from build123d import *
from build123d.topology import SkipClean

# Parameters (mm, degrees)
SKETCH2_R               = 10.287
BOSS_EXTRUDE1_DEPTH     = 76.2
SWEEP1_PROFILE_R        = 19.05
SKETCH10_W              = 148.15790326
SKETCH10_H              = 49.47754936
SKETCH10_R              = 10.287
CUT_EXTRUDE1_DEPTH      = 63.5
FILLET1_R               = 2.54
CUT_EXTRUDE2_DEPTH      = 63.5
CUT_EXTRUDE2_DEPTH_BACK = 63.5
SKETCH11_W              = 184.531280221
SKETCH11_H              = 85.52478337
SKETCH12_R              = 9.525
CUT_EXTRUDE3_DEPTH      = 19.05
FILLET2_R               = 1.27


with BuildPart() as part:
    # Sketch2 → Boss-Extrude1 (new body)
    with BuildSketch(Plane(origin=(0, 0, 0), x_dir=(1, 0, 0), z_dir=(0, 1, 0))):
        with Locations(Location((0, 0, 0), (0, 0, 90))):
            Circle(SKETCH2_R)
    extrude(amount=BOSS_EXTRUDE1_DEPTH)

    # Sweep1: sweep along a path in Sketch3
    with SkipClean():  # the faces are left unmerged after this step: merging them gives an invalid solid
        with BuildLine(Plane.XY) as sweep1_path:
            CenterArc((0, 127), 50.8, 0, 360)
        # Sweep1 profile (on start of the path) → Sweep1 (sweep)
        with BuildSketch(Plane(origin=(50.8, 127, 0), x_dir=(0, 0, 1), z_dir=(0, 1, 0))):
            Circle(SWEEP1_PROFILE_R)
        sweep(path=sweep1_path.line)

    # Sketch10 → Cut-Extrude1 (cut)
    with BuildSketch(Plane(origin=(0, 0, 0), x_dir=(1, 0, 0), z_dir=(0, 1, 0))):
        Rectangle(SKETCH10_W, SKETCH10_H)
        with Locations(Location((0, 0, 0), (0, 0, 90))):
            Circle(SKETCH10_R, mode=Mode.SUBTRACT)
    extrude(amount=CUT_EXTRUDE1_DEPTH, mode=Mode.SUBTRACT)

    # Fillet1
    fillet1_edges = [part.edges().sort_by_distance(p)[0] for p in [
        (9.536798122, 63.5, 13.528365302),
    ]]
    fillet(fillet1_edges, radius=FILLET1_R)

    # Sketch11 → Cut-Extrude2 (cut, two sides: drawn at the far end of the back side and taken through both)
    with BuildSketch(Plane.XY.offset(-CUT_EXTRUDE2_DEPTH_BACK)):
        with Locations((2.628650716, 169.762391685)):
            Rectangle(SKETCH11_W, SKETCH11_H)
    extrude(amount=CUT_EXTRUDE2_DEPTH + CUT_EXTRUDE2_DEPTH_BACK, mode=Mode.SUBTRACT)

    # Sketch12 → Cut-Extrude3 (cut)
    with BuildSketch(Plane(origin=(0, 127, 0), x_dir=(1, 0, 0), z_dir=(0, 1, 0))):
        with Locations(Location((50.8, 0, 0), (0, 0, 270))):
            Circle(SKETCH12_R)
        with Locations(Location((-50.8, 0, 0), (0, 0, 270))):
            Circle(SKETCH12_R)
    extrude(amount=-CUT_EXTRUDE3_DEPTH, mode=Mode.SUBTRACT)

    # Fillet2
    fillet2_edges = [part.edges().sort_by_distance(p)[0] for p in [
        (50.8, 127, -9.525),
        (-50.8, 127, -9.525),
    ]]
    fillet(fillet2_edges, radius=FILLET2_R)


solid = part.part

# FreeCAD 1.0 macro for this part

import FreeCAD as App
import Part
import Sketcher
Q = App.Units.Quantity


def edges_at(feature, points):
    """Names of the edges that pass closest to the given points."""
    edges = feature.Shape.Edges
    near = lambda p: min(range(len(edges)), key=lambda i: edges[i].distToShape(Part.Vertex(*p))[0])
    return sorted({f"Edge{near(p) + 1}" for p in points})


def add_polygon(sketch, points):
    """Adds a closed chain of lines whose ends are joined by coincident constraints."""
    first, n = sketch.GeometryCount, len(points)
    for a, b in zip(points, points[1:] + points[:1]):
        sketch.addGeometry(Part.LineSegment(App.Vector(*a, 0), App.Vector(*b, 0)), False)
    for i in range(n):
        sketch.addConstraint(Sketcher.Constraint("Coincident", first + i, 2, first + (i + 1) % n, 1))

doc = App.newDocument("Part")
params = doc.addObject("Spreadsheet::Sheet", "Params")
for row, (alias, value) in enumerate([
    ("sketch1_diameter", "0.81 in"),
    ("pad1_length", "3 in"),
    ("sketch2_diameter", "1.5 in"),
    ("sketch3_diameter", "4 in"),
    ("sketch4_diameter", "0.81 in"),
    ("pocket1_length", "2.5 in"),
    ("fillet_radius", "0.1 in"),
    ("sketch6_diameter", "0.75 in"),
    ("pocket3_length", "0.75 in"),
    ("fillet2_radius", "0.05 in"),
], start=1):
    params.set(f"A{row}", alias)
    params.set(f"B{row}", "=" + value)
    params.setAlias(f"B{row}", alias)

body = doc.addObject("PartDesign::Body", "Body")

# Sketch on XZ plane
sketch1 = body.newObject("Sketcher::SketchObject", "Sketch")
sketch1.AttachmentSupport = (doc.getObject("XZ_Plane"), [""])
sketch1.MapMode = "FlatFace"
sketch1.addGeometry(Part.Circle(App.Vector(0, 0, 0), App.Vector(0, 0, 1), 10.287), False)
sketch1.addConstraint([
    Sketcher.Constraint("Coincident", 0, 3, -1, 1),
    Sketcher.Constraint("Diameter", 0, Q("0.81 in")),
])
sketch1.setExpression("Constraints[1]", "Params.sketch1_diameter")
pad1 = body.newObject("PartDesign::Pad", "Pad")
pad1.Profile = sketch1
pad1.setExpression("Length", "Params.pad1_length")
pad1.Reversed = True

# Sketch on XZ plane
sketch2 = body.newObject("Sketcher::SketchObject", "Sketch001")
sketch2.AttachmentSupport = (doc.getObject("XZ_Plane"), [""])
sketch2.MapMode = "FlatFace"
sketch2.AttachmentOffset = App.Placement(App.Vector(0, 0, -5 * 25.4), App.Rotation())
sketch2.addGeometry(Part.Circle(App.Vector(50.8, 0, 0), App.Vector(0, 0, 1), 19.05), False)
sketch2.addConstraint([
    Sketcher.Constraint("PointOnObject", 0, 3, -1),
    Sketcher.Constraint("Diameter", 0, Q("1.5 in")),
    Sketcher.Constraint("DistanceX", -1, 1, 0, 3, Q("2 in")),
])
sketch2.setExpression("Constraints[1]", "Params.sketch2_diameter")

# Sketch on XY plane
sketch3 = body.newObject("Sketcher::SketchObject", "Sketch002")
sketch3.AttachmentSupport = (doc.getObject("XY_Plane"), [""])
sketch3.MapMode = "FlatFace"
sketch3.addGeometry(Part.Circle(App.Vector(0, 127, 0), App.Vector(0, 0, 1), 50.8), False)
sketch3.addConstraint([
    Sketcher.Constraint("PointOnObject", 0, 3, -2),
    Sketcher.Constraint("Diameter", 0, Q("4 in")),
    Sketcher.Constraint("DistanceY", -1, 1, 0, 3, Q("5 in")),
])
sketch3.setExpression("Constraints[1]", "Params.sketch3_diameter")
doc.recompute()

additivepipe = body.newObject("PartDesign::AdditivePipe", "AdditivePipe")
additivepipe.Profile = sketch2
additivepipe.Spine = (sketch3, ["Edge1"])

# Sketch on XZ plane
sketch4 = body.newObject("Sketcher::SketchObject", "Sketch003")
sketch4.AttachmentSupport = (doc.getObject("XZ_Plane"), [""])
sketch4.MapMode = "FlatFace"
add_polygon(sketch4, [(-74.078952, -24.738775), (-74.078952, 24.738775), (74.078952, 24.738775), (74.078952, -24.738775)])  # lines 0-3
sketch4.addGeometry(Part.Circle(App.Vector(0, 0, 0), App.Vector(0, 0, 1), 10.287), False)  # 4
sketch4.addConstraint([
    Sketcher.Constraint("Vertical", 0),
    Sketcher.Constraint("Horizontal", 1),
    Sketcher.Constraint("Vertical", 2),
    Sketcher.Constraint("Horizontal", 3),
    Sketcher.Constraint("Coincident", 4, 3, -1, 1),
    Sketcher.Constraint("Symmetric", 0, 2, 2, 2, -1, 1),
    Sketcher.Constraint("Diameter", 4, Q("0.81 in")),
    Sketcher.Constraint("DistanceY", 0, 1, 0, 2, Q("49.477549 mm")),
    Sketcher.Constraint("DistanceX", 1, 1, 1, 2, Q("148.157903 mm")),
])
sketch4.setExpression("Constraints[10]", "Params.sketch4_diameter")
pocket1 = body.newObject("PartDesign::Pocket", "Pocket")
pocket1.Profile = sketch4
pocket1.setExpression("Length", "Params.pocket1_length")
doc.recompute()

fillet = body.newObject("PartDesign::Fillet", "Fillet")
fillet.Base = (pocket1, edges_at(pocket1, [(9.537, 63.5, 13.528)]))
fillet.setExpression("Radius", "Params.fillet_radius")

# Sketch on XY plane
sketch5 = body.newObject("Sketcher::SketchObject", "Sketch004")
sketch5.AttachmentSupport = (doc.getObject("XY_Plane"), [""])
sketch5.MapMode = "FlatFace"
add_polygon(sketch5, [(-89.636989, 212.524783), (-89.636989, 127), (94.894291, 127), (94.894291, 212.524783)])  # lines 0-3
sketch5.addConstraint([
    Sketcher.Constraint("Vertical", 0),
    Sketcher.Constraint("Horizontal", 1),
    Sketcher.Constraint("Vertical", 2),
    Sketcher.Constraint("Horizontal", 3),
    Sketcher.Constraint("DistanceY", -1, 1, 0, 2, Q("5 in")),
    Sketcher.Constraint("DistanceX", 1, 1, 1, 2, Q("184.53128 mm")),
    Sketcher.Constraint("DistanceY", 0, 2, 0, 1, Q("85.524783 mm")),
    Sketcher.Constraint("DistanceX", 0, 2, -1, 1, Q("89.636989 mm")),
])
pocket2 = body.newObject("PartDesign::Pocket", "Pocket001")
pocket2.Profile = sketch5
pocket2.Type = "ThroughAll"
pocket2.Midplane = True

# Sketch on XZ plane
sketch6 = body.newObject("Sketcher::SketchObject", "Sketch005")
sketch6.AttachmentSupport = (doc.getObject("XZ_Plane"), [""])
sketch6.MapMode = "FlatFace"
sketch6.AttachmentOffset = App.Placement(App.Vector(0, 0, -5 * 25.4), App.Rotation())
sketch6.addGeometry([
    Part.Circle(App.Vector(50.8, 0, 0), App.Vector(0, 0, 1), 9.525),
    Part.Circle(App.Vector(-50.8, 0, 0), App.Vector(0, 0, 1), 9.525),
], False)
sketch6.addConstraint([
    Sketcher.Constraint("Equal", 0, 1),
    Sketcher.Constraint("Symmetric", 0, 3, 1, 3, -1, 1),
    Sketcher.Constraint("PointOnObject", 0, 3, -1),
    Sketcher.Constraint("Diameter", 0, Q("0.75 in")),
    Sketcher.Constraint("DistanceX", -1, 1, 0, 3, Q("2 in")),
])
sketch6.setExpression("Constraints[3]", "Params.sketch6_diameter")
pocket3 = body.newObject("PartDesign::Pocket", "Pocket002")
pocket3.Profile = sketch6
pocket3.setExpression("Length", "Params.pocket3_length")
pocket3.Reversed = True
doc.recompute()

fillet2 = body.newObject("PartDesign::Fillet", "Fillet001")
fillet2.Base = (pocket3, edges_at(pocket3, [(50.8, 127, -9.525), (-50.8, 127, -9.525)]))
fillet2.setExpression("Radius", "Params.fillet2_radius")

doc.recompute()
